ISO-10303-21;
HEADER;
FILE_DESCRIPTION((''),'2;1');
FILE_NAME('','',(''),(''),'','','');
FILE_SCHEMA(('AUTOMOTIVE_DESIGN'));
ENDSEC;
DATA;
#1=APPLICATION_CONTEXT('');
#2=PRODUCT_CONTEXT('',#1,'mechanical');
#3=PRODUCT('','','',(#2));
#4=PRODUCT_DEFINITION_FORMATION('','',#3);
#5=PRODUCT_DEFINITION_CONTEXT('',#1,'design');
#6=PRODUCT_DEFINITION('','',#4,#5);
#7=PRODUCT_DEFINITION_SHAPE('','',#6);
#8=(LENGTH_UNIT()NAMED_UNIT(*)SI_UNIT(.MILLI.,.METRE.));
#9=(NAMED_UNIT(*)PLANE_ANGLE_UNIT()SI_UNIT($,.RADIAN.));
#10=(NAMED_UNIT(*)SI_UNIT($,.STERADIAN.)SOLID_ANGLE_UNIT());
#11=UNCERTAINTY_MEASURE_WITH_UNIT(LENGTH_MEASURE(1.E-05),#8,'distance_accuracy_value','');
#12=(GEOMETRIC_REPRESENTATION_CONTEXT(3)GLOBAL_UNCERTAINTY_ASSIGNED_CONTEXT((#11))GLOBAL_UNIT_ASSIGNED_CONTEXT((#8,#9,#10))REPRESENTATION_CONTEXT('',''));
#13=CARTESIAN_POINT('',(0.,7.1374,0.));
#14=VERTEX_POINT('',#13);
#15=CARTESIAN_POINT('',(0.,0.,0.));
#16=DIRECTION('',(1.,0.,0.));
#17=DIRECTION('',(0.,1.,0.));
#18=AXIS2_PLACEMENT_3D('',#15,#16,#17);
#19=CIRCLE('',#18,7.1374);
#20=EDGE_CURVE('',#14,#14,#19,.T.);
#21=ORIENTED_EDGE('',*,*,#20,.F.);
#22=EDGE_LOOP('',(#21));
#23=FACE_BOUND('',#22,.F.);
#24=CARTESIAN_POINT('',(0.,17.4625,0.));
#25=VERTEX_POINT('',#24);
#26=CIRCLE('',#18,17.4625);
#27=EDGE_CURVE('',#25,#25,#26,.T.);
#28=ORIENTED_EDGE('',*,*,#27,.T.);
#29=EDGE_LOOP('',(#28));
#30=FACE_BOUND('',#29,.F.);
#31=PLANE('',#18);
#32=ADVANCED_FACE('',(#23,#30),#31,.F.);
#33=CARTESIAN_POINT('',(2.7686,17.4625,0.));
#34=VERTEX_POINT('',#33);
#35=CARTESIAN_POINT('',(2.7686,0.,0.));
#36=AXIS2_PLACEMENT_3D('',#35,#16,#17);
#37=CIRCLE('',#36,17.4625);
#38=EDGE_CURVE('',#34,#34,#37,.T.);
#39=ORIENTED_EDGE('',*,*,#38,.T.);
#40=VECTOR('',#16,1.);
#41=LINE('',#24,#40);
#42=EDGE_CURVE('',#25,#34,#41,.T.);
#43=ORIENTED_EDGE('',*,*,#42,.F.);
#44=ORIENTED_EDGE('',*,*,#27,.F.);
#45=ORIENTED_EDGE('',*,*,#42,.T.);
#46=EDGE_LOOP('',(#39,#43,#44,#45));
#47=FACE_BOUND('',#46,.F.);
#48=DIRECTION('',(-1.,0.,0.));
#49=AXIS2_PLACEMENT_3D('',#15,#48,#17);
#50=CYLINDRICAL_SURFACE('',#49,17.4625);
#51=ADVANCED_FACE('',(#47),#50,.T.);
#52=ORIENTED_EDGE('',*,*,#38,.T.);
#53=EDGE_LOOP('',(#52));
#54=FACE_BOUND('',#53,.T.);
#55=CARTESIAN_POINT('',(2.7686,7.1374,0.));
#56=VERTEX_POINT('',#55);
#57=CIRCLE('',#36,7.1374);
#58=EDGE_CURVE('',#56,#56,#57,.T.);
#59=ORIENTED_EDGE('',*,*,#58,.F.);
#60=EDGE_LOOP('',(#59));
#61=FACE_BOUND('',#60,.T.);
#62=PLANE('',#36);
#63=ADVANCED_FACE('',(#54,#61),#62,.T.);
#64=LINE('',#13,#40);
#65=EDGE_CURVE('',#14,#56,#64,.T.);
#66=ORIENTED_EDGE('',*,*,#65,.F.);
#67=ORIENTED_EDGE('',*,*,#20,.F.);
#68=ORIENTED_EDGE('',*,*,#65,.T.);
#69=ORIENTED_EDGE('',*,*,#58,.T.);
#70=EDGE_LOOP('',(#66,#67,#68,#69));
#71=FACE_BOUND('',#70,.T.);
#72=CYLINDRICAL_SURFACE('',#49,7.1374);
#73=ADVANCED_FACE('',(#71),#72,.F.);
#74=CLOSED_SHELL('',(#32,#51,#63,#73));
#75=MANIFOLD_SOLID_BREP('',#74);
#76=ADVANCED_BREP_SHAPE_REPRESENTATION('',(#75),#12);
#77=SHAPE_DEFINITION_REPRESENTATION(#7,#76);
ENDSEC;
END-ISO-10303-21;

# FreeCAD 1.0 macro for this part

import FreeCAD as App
import Part
import Sketcher

V = App.Vector
Q = App.Units.Quantity

doc = App.newDocument("Part")
params = doc.addObject("Spreadsheet::Sheet", "Params")
for row, (alias, value) in enumerate([
    ("sketch1_diameter", "1.375 in"),
    ("sketch1_diameter2", "0.562 in"),
    ("pad1_length", "0.109 in"),
], start=1):
    params.set(f"A{row}", alias)
    params.set(f"B{row}", "=" + value)
    params.setAlias(f"B{row}", alias)

body = doc.addObject("PartDesign::Body", "Body")

sketch1 = body.newObject("Sketcher::SketchObject", "Sketch")
sketch1.AttachmentSupport = (doc.getObject("YZ_Plane"), [""])
sketch1.MapMode = "FlatFace"
sketch1.addGeometry([
    Part.Circle(V(0, 0, 0), V(0, 0, 1), 17),
    Part.Circle(V(0, 0, 0), V(0, 0, 1), 7),
], False)
sketch1.addConstraint([
    Sketcher.Constraint("Coincident", 0, 3, -1, 1),
    Sketcher.Constraint("Coincident", 1, 3, -1, 1),
    Sketcher.Constraint("Diameter", 0, Q("1.375 in")),
    Sketcher.Constraint("Diameter", 1, Q("0.562 in")),
])
sketch1.setExpression("Constraints[2]", "Params.sketch1_diameter")
sketch1.setExpression("Constraints[3]", "Params.sketch1_diameter2")
pad1 = body.newObject("PartDesign::Pad", "Pad")
pad1.Profile = sketch1
pad1.setExpression("Length", "Params.pad1_length")

doc.recompute()
